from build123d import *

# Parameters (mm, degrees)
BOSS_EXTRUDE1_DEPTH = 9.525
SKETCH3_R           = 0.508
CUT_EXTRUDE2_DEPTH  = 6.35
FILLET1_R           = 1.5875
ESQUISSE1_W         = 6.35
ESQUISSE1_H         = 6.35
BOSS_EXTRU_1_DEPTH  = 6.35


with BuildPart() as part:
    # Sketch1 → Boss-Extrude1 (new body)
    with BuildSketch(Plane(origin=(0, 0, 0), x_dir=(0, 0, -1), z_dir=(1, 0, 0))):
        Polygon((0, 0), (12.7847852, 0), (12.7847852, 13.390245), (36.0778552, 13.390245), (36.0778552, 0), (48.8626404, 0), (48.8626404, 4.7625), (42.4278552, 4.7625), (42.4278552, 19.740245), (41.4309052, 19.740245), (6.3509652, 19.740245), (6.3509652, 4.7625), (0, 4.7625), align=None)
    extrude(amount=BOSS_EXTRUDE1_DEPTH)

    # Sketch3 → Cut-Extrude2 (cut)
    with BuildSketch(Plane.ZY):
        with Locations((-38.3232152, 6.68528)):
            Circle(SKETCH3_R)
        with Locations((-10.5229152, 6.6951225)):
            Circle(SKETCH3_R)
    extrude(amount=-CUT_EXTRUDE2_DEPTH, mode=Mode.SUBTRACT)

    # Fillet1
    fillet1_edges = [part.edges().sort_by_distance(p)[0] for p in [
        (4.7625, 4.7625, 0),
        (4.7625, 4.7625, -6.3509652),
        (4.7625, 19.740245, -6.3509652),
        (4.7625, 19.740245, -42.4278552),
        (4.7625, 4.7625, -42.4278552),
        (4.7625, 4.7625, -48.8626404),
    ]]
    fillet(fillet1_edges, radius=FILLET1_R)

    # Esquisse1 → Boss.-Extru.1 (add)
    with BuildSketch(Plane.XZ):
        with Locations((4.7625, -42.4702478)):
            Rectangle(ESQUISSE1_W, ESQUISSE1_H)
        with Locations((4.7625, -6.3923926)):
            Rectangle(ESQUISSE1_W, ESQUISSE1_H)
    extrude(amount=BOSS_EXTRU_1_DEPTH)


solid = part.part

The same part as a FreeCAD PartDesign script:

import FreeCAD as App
import Part
import Sketcher
from FreeCAD import Vector
Q = App.Units.Quantity


def edges_at(feature, points):
    """Names of the edges that pass closest to the given points."""
    edges = feature.Shape.Edges
    near = lambda p: min(range(len(edges)), key=lambda i: edges[i].distToShape(Part.Vertex(*p))[0])
    return sorted({f"Edge{near(p) + 1}" for p in points})


def add_polygon(sketch, points):
    """Adds a closed chain of lines whose ends are joined by coincident constraints."""
    first, n = sketch.GeometryCount, len(points)
    for a, b in zip(points, points[1:] + points[:1]):
        sketch.addGeometry(Part.LineSegment(App.Vector(*a, 0), App.Vector(*b, 0)), False)
    for i in range(n):
        sketch.addConstraint(Sketcher.Constraint("Coincident", first + i, 2, first + (i + 1) % n, 1))

doc = App.newDocument("Part")
params = doc.addObject("Spreadsheet::Sheet", "Params")
for row, (alias, value) in enumerate([
    ("sketch1_width", "0.1875 in"),
    ("pad1_length", "0.375 in"),
    ("sketch2_diameter", "0.04 in"),
    ("pocket1_length", "0.25 in"),
    ("fillet_radius", "0.0625 in"),
    ("sketch3_width", "0.25 in"),
    ("pad2_length", "0.25 in"),
], start=1):
    params.set(f"A{row}", alias)
    params.set(f"B{row}", "=" + value)
    params.setAlias(f"B{row}", alias)

body = doc.addObject("PartDesign::Body", "Body")

sketch1 = doc.addObject("Sketcher::SketchObject", "Sketch")
body.addObject(sketch1)
sketch1.AttachmentSupport = (doc.YZ_Plane, [""])
sketch1.MapMode = "FlatFace"
add_polygon(sketch1, [(0, 0), (0, -12.8), (13.4, -12.8), (13.4, -36.1), (0, -36.1), (0, -48.9), (4.8, -48.9), (4.8, -42.4), (19.7, -42.4), (19.7, -6.4), (4.8, -6.4), (4.8, 0)])
sketch1.addConstraint(Sketcher.Constraint("Vertical", 0))
sketch1.addConstraint(Sketcher.Constraint("Horizontal", 1))
sketch1.addConstraint(Sketcher.Constraint("Vertical", 2))
sketch1.addConstraint(Sketcher.Constraint("Horizontal", 3))
sketch1.addConstraint(Sketcher.Constraint("Vertical", 4))
sketch1.addConstraint(Sketcher.Constraint("Horizontal", 5))
sketch1.addConstraint(Sketcher.Constraint("Vertical", 6))
sketch1.addConstraint(Sketcher.Constraint("Horizontal", 7))
sketch1.addConstraint(Sketcher.Constraint("Vertical", 8))
sketch1.addConstraint(Sketcher.Constraint("Horizontal", 9))
sketch1.addConstraint(Sketcher.Constraint("Vertical", 10))
sketch1.addConstraint(Sketcher.Constraint("Horizontal", 11))
sketch1.addConstraint(Sketcher.Constraint("Coincident", 11, 2, -1, 1))
sketch1.addConstraint(Sketcher.Constraint("PointOnObject", 3, 2, -2))
sketch1.addConstraint(Sketcher.Constraint("Vertical", 6, 2, 9, 2))
sketch1.addConstraint(Sketcher.Constraint("Equal", 0, 4))
sketch1.addConstraint(Sketcher.Constraint("DistanceX", 5, 1, 5, 2, Q("0.1875 in")))
sketch1.addConstraint(Sketcher.Constraint("DistanceY", 6, 2, 3, 2, Q("0.25 in")))
sketch1.addConstraint(Sketcher.Constraint("DistanceX", 2, 2, 7, 2, Q("0.25 in")))
sketch1.addConstraint(Sketcher.Constraint("DistanceY", 1, 2, 8, 2, Q("0.2533 in")))
sketch1.addConstraint(Sketcher.Constraint("DistanceY", 2, 2, 2, 1, 23.29307))
sketch1.addConstraint(Sketcher.Constraint("DistanceX", 1, 1, 1, 2, 13.390245))
sketch1.addConstraint(Sketcher.Constraint("DistanceY", 0, 2, 0, 1, 12.784785))
sketch1.setExpression("Constraints[28]", "Params.sketch1_width")
pad1 = doc.addObject("PartDesign::Pad", "Pad")
body.addObject(pad1)
pad1.Profile = sketch1
pad1.setExpression("Length", "Params.pad1_length")

sketch2 = doc.addObject("Sketcher::SketchObject", "Sketch001")
body.addObject(sketch2)
sketch2.AttachmentSupport = (doc.YZ_Plane, [""])
sketch2.MapMode = "FlatFace"
sketch2.addGeometry(Part.Circle(Vector(6.7, -38.3, 0), Vector(0, 0, 1), 0.5), False)
sketch2.addGeometry(Part.Circle(Vector(6.7, -10.5, 0), Vector(0, 0, 1), 0.5), False)
sketch2.addConstraint(Sketcher.Constraint("Equal", 0, 1))
sketch2.addConstraint(Sketcher.Constraint("Diameter", 0, Q("0.04 in")))
sketch2.addConstraint(Sketcher.Constraint("DistanceX", -1, 1, 0, 3, Q("0.2632 in")))
sketch2.addConstraint(Sketcher.Constraint("DistanceY", 0, 3, 1, 3, Q("1.0945 in")))
sketch2.addConstraint(Sketcher.Constraint("DistanceY", 0, 3, -1, 1, 38.323215))
sketch2.addConstraint(Sketcher.Constraint("DistanceX", -1, 1, 1, 3, 6.695123))
sketch2.setExpression("Constraints[1]", "Params.sketch2_diameter")
pocket1 = doc.addObject("PartDesign::Pocket", "Pocket")
body.addObject(pocket1)
pocket1.Profile = sketch2
pocket1.setExpression("Length", "Params.pocket1_length")
pocket1.Reversed = True
doc.recompute()

fillet = doc.addObject("PartDesign::Fillet", "Fillet")
body.addObject(fillet)
fillet.Base = (pocket1, edges_at(pocket1, [
    (4.763, 4.763, 0),
    (4.763, 4.763, -6.351),
    (4.763, 19.74, -6.351),
    (4.763, 19.74, -42.428),
    (4.763, 4.763, -42.428),
    (4.763, 4.763, -48.863),
]))
fillet.setExpression("Radius", "Params.fillet_radius")

sketch3 = doc.addObject("Sketcher::SketchObject", "Sketch002")
body.addObject(sketch3)
sketch3.AttachmentSupport = (doc.XZ_Plane, [""])
sketch3.MapMode = "FlatFace"
add_polygon(sketch3, [(2, -39), (2, -46), (8, -46), (8, -39)])
add_polygon(sketch3, [(2, -3), (2, -10), (8, -10), (8, -3)])
sketch3.addConstraint(Sketcher.Constraint("Vertical", 0))
sketch3.addConstraint(Sketcher.Constraint("Horizontal", 1))
sketch3.addConstraint(Sketcher.Constraint("Vertical", 2))
sketch3.addConstraint(Sketcher.Constraint("Horizontal", 3))
sketch3.addConstraint(Sketcher.Constraint("Vertical", 4))
sketch3.addConstraint(Sketcher.Constraint("Horizontal", 5))
sketch3.addConstraint(Sketcher.Constraint("Vertical", 6))
sketch3.addConstraint(Sketcher.Constraint("Horizontal", 7))
sketch3.addConstraint(Sketcher.Constraint("Vertical", 3, 2, 4, 2))
sketch3.addConstraint(Sketcher.Constraint("Vertical", 2, 2, 5, 2))
sketch3.addConstraint(Sketcher.Constraint("Equal", 7, 0))
sketch3.addConstraint(Sketcher.Constraint("Equal", 2, 4))
sketch3.addConstraint(Sketcher.Constraint("DistanceX", 1, 1, 1, 2, Q("0.25 in")))
sketch3.addConstraint(Sketcher.Constraint("DistanceX", -1, 1, 0, 2, Q("0.0625 in")))
sketch3.addConstraint(Sketcher.Constraint("DistanceY", 0, 2, -1, 1, 45.645248))
sketch3.addConstraint(Sketcher.Constraint("DistanceY", 4, 2, -1, 1, 9.567393))
sketch3.setExpression("Constraints[20]", "Params.sketch3_width")
pad2 = doc.addObject("PartDesign::Pad", "Pad001")
body.addObject(pad2)
pad2.Profile = sketch3
pad2.setExpression("Length", "Params.pad2_length")

doc.recompute()
